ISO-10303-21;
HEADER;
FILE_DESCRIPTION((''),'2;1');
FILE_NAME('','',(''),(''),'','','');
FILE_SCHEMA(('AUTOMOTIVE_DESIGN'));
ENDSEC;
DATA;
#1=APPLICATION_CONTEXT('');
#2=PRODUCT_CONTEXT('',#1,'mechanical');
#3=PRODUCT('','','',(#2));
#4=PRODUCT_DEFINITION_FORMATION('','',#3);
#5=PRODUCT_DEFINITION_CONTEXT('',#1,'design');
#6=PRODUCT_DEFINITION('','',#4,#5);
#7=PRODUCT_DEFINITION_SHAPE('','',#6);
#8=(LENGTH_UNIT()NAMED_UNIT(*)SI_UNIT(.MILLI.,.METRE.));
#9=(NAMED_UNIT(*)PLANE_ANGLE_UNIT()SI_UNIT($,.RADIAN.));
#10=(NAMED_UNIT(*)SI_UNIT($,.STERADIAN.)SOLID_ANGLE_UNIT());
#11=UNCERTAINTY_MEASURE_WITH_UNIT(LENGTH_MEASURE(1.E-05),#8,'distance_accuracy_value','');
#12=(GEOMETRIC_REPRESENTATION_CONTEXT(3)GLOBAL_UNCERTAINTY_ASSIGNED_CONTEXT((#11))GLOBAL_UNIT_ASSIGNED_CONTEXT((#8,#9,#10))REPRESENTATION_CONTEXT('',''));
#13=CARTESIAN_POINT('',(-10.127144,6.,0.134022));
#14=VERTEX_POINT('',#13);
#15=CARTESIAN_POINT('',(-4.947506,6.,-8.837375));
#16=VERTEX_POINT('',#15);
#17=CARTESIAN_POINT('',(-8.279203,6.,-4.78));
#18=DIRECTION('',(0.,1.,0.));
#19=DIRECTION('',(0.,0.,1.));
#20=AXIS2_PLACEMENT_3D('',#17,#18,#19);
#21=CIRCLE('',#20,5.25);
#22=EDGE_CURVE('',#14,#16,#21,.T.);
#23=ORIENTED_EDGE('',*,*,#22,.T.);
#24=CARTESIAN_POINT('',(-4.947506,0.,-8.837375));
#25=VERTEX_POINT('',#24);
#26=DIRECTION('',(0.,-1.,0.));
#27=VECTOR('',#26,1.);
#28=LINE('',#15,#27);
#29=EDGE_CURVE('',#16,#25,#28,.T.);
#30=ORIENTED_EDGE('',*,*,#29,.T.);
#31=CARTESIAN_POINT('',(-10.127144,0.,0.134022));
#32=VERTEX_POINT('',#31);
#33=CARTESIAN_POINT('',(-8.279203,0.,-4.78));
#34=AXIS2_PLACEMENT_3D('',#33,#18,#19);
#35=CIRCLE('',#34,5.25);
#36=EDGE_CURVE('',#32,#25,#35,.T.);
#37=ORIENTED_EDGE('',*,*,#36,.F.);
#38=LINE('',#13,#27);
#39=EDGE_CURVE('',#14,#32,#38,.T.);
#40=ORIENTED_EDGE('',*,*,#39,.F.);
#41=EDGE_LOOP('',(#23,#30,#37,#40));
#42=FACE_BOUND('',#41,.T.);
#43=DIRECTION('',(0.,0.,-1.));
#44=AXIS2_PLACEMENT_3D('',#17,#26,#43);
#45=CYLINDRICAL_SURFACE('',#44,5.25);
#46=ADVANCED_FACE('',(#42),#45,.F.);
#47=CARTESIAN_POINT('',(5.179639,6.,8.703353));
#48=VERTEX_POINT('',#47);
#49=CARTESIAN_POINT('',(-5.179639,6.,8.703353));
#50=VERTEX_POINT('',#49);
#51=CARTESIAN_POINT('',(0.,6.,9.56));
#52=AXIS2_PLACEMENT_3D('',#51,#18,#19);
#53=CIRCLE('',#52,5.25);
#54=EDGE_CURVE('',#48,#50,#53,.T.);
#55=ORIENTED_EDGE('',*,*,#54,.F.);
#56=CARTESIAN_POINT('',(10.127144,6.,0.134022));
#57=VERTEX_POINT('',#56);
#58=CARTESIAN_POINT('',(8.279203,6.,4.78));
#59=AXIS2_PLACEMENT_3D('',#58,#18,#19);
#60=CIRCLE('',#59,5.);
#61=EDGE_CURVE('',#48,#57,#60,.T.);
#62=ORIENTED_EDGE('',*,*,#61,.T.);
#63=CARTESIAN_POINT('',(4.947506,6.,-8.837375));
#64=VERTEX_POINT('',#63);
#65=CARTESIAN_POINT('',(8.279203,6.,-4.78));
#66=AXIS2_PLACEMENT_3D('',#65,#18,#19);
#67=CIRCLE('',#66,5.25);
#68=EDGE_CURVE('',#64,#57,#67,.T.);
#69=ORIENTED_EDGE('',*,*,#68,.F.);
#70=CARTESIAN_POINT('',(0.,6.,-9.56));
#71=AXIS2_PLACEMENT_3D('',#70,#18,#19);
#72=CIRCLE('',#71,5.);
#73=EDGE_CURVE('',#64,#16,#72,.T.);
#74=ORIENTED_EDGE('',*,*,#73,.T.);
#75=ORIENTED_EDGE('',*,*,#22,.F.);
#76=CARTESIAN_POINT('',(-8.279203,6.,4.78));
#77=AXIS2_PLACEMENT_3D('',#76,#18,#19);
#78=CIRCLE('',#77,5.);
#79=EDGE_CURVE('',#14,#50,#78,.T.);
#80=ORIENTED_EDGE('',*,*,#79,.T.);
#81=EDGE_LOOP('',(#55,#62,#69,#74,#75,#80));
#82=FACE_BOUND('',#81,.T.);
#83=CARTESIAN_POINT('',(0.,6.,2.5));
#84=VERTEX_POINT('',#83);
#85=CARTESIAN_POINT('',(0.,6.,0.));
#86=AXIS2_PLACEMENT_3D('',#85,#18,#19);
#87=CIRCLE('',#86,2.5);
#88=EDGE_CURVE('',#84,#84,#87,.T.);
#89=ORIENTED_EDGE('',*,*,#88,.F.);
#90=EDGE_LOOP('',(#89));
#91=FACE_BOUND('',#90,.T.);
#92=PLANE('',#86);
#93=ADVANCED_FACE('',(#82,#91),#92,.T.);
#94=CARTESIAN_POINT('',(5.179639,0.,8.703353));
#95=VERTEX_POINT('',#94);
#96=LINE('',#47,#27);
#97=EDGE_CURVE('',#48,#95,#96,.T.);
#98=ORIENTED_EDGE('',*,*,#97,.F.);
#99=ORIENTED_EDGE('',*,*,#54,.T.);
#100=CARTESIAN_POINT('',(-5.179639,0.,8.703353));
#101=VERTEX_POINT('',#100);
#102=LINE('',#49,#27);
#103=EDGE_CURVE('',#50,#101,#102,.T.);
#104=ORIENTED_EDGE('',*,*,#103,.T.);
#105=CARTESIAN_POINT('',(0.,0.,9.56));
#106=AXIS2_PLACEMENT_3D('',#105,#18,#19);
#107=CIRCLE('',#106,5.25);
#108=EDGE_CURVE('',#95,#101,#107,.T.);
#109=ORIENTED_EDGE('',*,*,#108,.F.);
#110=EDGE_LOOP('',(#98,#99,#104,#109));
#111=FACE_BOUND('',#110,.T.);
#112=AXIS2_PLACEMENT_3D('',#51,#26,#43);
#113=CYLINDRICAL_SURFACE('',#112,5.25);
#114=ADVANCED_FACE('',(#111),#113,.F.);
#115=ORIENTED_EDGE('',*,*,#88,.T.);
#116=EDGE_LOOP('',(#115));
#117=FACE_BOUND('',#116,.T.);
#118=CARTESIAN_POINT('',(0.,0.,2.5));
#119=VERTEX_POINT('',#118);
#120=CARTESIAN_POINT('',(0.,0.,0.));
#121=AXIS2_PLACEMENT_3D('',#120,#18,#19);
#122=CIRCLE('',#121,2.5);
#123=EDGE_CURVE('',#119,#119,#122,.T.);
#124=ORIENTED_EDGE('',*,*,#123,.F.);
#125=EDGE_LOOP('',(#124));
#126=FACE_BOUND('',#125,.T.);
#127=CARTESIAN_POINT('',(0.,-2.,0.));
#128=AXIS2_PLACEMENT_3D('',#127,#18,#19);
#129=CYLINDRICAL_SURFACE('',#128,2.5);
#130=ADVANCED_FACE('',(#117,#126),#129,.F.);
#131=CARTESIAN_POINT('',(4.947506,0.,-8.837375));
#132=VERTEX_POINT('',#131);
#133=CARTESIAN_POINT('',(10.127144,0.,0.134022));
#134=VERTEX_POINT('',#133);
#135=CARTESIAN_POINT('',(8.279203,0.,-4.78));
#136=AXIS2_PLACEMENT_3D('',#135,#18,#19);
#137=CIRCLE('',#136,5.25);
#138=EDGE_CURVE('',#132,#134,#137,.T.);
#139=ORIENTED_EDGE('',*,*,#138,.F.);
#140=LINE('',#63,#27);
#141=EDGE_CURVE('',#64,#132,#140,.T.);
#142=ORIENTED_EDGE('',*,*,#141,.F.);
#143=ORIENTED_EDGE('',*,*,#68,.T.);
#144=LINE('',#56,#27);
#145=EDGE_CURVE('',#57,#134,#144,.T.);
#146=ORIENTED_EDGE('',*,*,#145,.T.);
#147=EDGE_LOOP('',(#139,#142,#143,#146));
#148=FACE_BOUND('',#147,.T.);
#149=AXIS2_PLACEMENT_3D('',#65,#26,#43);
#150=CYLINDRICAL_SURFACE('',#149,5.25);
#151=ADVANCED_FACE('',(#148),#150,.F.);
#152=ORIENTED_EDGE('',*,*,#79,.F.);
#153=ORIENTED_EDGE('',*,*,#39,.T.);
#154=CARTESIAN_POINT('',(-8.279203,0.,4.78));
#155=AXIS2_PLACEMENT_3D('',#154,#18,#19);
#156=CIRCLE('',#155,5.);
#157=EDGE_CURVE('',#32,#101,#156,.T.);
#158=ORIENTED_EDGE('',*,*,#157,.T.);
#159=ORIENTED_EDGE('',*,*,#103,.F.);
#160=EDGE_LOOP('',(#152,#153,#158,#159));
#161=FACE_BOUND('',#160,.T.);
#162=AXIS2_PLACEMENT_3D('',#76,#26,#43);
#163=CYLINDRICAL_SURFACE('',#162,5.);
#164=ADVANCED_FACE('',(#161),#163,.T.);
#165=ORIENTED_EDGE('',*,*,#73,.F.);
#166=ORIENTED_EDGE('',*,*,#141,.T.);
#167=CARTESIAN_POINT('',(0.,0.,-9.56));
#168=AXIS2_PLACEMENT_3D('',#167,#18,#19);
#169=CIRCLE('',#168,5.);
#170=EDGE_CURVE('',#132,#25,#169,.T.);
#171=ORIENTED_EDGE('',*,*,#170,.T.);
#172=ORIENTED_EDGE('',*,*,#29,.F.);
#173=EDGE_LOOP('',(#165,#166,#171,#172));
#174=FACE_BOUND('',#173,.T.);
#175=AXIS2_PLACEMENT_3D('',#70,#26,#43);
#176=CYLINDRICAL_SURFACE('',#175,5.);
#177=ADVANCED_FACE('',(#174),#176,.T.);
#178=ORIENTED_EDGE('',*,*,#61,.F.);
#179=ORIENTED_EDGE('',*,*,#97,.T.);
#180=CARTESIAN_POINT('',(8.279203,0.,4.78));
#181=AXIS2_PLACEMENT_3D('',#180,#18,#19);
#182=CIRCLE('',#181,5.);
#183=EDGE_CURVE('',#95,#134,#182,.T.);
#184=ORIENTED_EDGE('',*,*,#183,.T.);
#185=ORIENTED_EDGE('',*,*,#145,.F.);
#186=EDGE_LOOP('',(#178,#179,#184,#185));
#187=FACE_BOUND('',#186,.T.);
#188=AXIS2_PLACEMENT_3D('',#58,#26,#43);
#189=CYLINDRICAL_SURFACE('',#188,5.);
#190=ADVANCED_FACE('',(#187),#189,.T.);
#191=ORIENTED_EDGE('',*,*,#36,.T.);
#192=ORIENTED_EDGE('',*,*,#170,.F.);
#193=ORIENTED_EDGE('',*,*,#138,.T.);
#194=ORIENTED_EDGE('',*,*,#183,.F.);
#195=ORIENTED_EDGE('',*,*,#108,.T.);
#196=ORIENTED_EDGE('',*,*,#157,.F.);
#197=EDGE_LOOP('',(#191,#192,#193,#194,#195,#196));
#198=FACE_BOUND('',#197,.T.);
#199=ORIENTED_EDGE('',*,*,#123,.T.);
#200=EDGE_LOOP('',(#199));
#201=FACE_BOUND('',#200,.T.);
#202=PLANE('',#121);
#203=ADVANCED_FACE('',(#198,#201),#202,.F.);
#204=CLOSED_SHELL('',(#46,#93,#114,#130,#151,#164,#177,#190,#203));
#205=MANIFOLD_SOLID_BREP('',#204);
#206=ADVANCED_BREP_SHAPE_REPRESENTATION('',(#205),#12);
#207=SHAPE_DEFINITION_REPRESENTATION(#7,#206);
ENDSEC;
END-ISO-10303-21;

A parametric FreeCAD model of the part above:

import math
import FreeCAD as App
import Part
import Sketcher
from FreeCAD import Vector
Q = App.Units.Quantity

doc = App.newDocument("Part")
body = doc.addObject("PartDesign::Body", "Body")

# Sketch on XZ plane
sketch1 = doc.addObject("Sketcher::SketchObject", "Sketch")
body.addObject(sketch1)
sketch1.AttachmentSupport = (doc.XZ_Plane, [""])
sketch1.MapMode = "FlatFace"
sketch1.addGeometry([
    Part.ArcOfCircle(Part.Circle(Vector(8, -5, 0), Vector(0, 0, 1), 5), math.radians(69), math.radians(231)),  # 0
    Part.ArcOfCircle(Part.Circle(Vector(0, -10, 0), Vector(0, 0, 1), 5), math.radians(172), math.radians(368)),  # 1
    Part.ArcOfCircle(Part.Circle(Vector(-8, -5, 0), Vector(0, 0, 1), 5), math.radians(-51), math.radians(111)),  # 2
    Part.ArcOfCircle(Part.Circle(Vector(-8, 5, 0), Vector(0, 0, 1), 5), math.radians(52), math.radians(248)),  # 3
    Part.ArcOfCircle(Part.Circle(Vector(0, 10, 0), Vector(0, 0, 1), 5), math.radians(-171), math.radians(-9)),  # 4
    Part.ArcOfCircle(Part.Circle(Vector(8, 5, 0), Vector(0, 0, 1), 5), math.radians(-68), math.radians(128)),  # 5
], False)
sketch1.addConstraint([
    Sketcher.Constraint("Coincident", 0, 2, 1, 2),
    Sketcher.Constraint("Coincident", 1, 1, 2, 1),
    Sketcher.Constraint("Coincident", 2, 2, 3, 2),
    Sketcher.Constraint("Coincident", 3, 1, 4, 1),
    Sketcher.Constraint("Coincident", 4, 2, 5, 2),
    Sketcher.Constraint("Coincident", 5, 1, 0, 1),
    Sketcher.Constraint("Equal", 0, 2),
    Sketcher.Constraint("Equal", 1, 3),
    Sketcher.Constraint("Equal", 2, 4),
    Sketcher.Constraint("Equal", 3, 5),
    Sketcher.Constraint("Symmetric", 0, 3, 3, 3, -1, 1),
    Sketcher.Constraint("Symmetric", 1, 3, 4, 3, -1, 1),
    Sketcher.Constraint("Symmetric", 2, 3, 5, 3, -1, 1),
    Sketcher.Constraint("Symmetric", 0, 3, 2, 3, -2),
    Sketcher.Constraint("PointOnObject", 1, 3, -2),
    Sketcher.Constraint("Radius", 1, Q("5 mm")),
    Sketcher.Constraint("Radius", 0, Q("5.25 mm")),
    Sketcher.Constraint("DistanceY", 0, 3, -1, 1, Q("4.78 mm")),
    Sketcher.Constraint("DistanceY", 1, 3, -1, 1, Q("9.56 mm")),
    Sketcher.Constraint("DistanceX", 3, 1, -1, 1, Q("5.179639 mm")),
])
pad1 = doc.addObject("PartDesign::Pad", "Pad")
body.addObject(pad1)
pad1.Profile = sketch1
pad1.Length = 6
pad1.Reversed = True

# Sketch on XZ plane
sketch2 = doc.addObject("Sketcher::SketchObject", "Sketch001")
body.addObject(sketch2)
sketch2.AttachmentSupport = (doc.XZ_Plane, [""])
sketch2.MapMode = "FlatFace"
sketch2.AttachmentOffset = App.Placement(Vector(0, 0, -6), App.Rotation())
sketch2.addGeometry(Part.Circle(Vector(0, 0, 0), Vector(0, 0, 1), 2.5), False)
sketch2.addConstraint([
    Sketcher.Constraint("Coincident", 0, 3, -1, 1),
    Sketcher.Constraint("Diameter", 0, Q("5 mm")),
])
pocket1 = doc.addObject("PartDesign::Pocket", "Pocket")
body.addObject(pocket1)
pocket1.Profile = sketch2
pocket1.Length = 8
pocket1.Reversed = True

doc.recompute()
